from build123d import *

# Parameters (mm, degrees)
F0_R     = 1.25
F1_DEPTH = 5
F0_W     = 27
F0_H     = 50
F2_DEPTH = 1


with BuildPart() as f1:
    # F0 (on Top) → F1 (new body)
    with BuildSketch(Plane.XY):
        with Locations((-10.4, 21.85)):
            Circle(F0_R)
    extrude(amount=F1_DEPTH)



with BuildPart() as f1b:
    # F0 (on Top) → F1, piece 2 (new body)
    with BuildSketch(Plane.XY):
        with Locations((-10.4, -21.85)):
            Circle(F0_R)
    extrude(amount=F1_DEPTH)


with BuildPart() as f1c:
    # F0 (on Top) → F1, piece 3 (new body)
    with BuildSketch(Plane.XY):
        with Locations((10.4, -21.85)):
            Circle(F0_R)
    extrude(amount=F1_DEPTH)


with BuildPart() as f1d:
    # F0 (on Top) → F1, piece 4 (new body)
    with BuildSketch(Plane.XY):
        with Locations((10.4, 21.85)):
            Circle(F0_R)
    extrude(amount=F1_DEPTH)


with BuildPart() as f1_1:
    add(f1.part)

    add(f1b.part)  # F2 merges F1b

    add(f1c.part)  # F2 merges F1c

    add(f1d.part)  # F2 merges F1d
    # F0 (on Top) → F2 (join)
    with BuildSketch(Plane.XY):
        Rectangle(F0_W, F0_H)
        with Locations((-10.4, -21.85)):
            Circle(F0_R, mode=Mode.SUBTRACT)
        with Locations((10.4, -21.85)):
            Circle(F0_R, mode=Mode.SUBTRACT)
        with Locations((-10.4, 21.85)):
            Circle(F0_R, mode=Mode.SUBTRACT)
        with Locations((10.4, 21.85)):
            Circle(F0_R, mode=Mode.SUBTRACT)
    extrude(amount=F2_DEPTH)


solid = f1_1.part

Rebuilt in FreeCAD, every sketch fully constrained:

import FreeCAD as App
import Part
import Sketcher

V = App.Vector

doc = App.newDocument("Part")
body = doc.addObject("PartDesign::Body", "Body")

sketch1 = doc.addObject("Sketcher::SketchObject", "Sketch")
body.addObject(sketch1)
sketch1.AttachmentSupport = (doc.XY_Plane, [""])
sketch1.MapMode = "FlatFace"
sketch1.addGeometry(Part.Circle(V(-10.4, 21.85, 0), V(0, 0, 1), 1.25), False)
sketch1.addConstraint(Sketcher.Constraint("Diameter", 0, 2.5))
sketch1.addConstraint(Sketcher.Constraint("DistanceX", 0, 3, -1, 1, 10.4))
sketch1.addConstraint(Sketcher.Constraint("DistanceY", -1, 1, 0, 3, 21.85))
pad1 = doc.addObject("PartDesign::Pad", "Pad")
body.addObject(pad1)
pad1.Profile = sketch1
pad1.Length = 5
body2 = doc.addObject("PartDesign::Body", "Body001")

sketch2 = doc.addObject("Sketcher::SketchObject", "Sketch001")
body2.addObject(sketch2)
sketch2.AttachmentSupport = (doc.getObject("XY_Plane001"), [""])
sketch2.MapMode = "FlatFace"
sketch2.addGeometry(Part.Circle(V(-10.4, -21.85, 0), V(0, 0, 1), 1.25), False)
sketch2.addConstraint(Sketcher.Constraint("Diameter", 0, 2.5))
sketch2.addConstraint(Sketcher.Constraint("DistanceX", 0, 3, -1, 1, 10.4))
sketch2.addConstraint(Sketcher.Constraint("DistanceY", 0, 3, -1, 1, 21.85))
pad2 = doc.addObject("PartDesign::Pad", "Pad001")
body2.addObject(pad2)
pad2.Profile = sketch2
pad2.Length = 5
body3 = doc.addObject("PartDesign::Body", "Body002")

sketch3 = doc.addObject("Sketcher::SketchObject", "Sketch002")
body3.addObject(sketch3)
sketch3.AttachmentSupport = (doc.getObject("XY_Plane002"), [""])
sketch3.MapMode = "FlatFace"
sketch3.addGeometry(Part.Circle(V(10.4, -21.85, 0), V(0, 0, 1), 1.25), False)
sketch3.addConstraint(Sketcher.Constraint("Diameter", 0, 2.5))
sketch3.addConstraint(Sketcher.Constraint("DistanceX", -1, 1, 0, 3, 10.4))
sketch3.addConstraint(Sketcher.Constraint("DistanceY", 0, 3, -1, 1, 21.85))
pad3 = doc.addObject("PartDesign::Pad", "Pad002")
body3.addObject(pad3)
pad3.Profile = sketch3
pad3.Length = 5
body4 = doc.addObject("PartDesign::Body", "Body003")

sketch4 = doc.addObject("Sketcher::SketchObject", "Sketch003")
body4.addObject(sketch4)
sketch4.AttachmentSupport = (doc.getObject("XY_Plane003"), [""])
sketch4.MapMode = "FlatFace"
sketch4.addGeometry(Part.Circle(V(10.4, 21.85, 0), V(0, 0, 1), 1.25), False)
sketch4.addConstraint(Sketcher.Constraint("Diameter", 0, 2.5))
sketch4.addConstraint(Sketcher.Constraint("DistanceX", -1, 1, 0, 3, 10.4))
sketch4.addConstraint(Sketcher.Constraint("DistanceY", -1, 1, 0, 3, 21.85))
pad4 = doc.addObject("PartDesign::Pad", "Pad003")
body4.addObject(pad4)
pad4.Profile = sketch4
pad4.Length = 5
body.AllowCompound = True
doc.recompute()

boolean = doc.addObject("PartDesign::Boolean", "Boolean")
body.addObject(boolean)
boolean.Type = "Fuse"
boolean.addObjects([body2])
doc.recompute()

boolean2 = doc.addObject("PartDesign::Boolean", "Boolean001")
body.addObject(boolean2)
boolean2.Type = "Fuse"
boolean2.addObjects([body3])
doc.recompute()

boolean3 = doc.addObject("PartDesign::Boolean", "Boolean002")
body.addObject(boolean3)
boolean3.Type = "Fuse"
boolean3.addObjects([body4])

sketch5 = doc.addObject("Sketcher::SketchObject", "Sketch004")
body.addObject(sketch5)
sketch5.AttachmentSupport = (doc.XY_Plane, [""])
sketch5.MapMode = "FlatFace"
sketch5.addGeometry(Part.LineSegment(V(-13.5, 25, 0), V(-13.5, -25, 0)), False)
sketch5.addGeometry(Part.LineSegment(V(-13.5, -25, 0), V(13.5, -25, 0)), False)
sketch5.addGeometry(Part.LineSegment(V(13.5, -25, 0), V(13.5, 25, 0)), False)
sketch5.addGeometry(Part.LineSegment(V(13.5, 25, 0), V(-13.5, 25, 0)), False)
sketch5.addGeometry(Part.Circle(V(-10.4, -21.85, 0), V(0, 0, 1), 1.25), False)
sketch5.addGeometry(Part.Circle(V(10.4, -21.85, 0), V(0, 0, 1), 1.25), False)
sketch5.addGeometry(Part.Circle(V(-10.4, 21.85, 0), V(0, 0, 1), 1.25), False)
sketch5.addGeometry(Part.Circle(V(10.4, 21.85, 0), V(0, 0, 1), 1.25), False)
sketch5.addConstraint(Sketcher.Constraint("Coincident", 0, 2, 1, 1))
sketch5.addConstraint(Sketcher.Constraint("Coincident", 1, 2, 2, 1))
sketch5.addConstraint(Sketcher.Constraint("Coincident", 2, 2, 3, 1))
sketch5.addConstraint(Sketcher.Constraint("Coincident", 3, 2, 0, 1))
sketch5.addConstraint(Sketcher.Constraint("Vertical", 0))
sketch5.addConstraint(Sketcher.Constraint("Horizontal", 1))
sketch5.addConstraint(Sketcher.Constraint("Vertical", 2))
sketch5.addConstraint(Sketcher.Constraint("Horizontal", 3))
sketch5.addConstraint(Sketcher.Constraint("Equal", 4, 5))
sketch5.addConstraint(Sketcher.Constraint("Equal", 5, 6))
sketch5.addConstraint(Sketcher.Constraint("Equal", 6, 7))
sketch5.addConstraint(Sketcher.Constraint("Symmetric", 5, 3, 6, 3, -1, 1))
sketch5.addConstraint(Sketcher.Constraint("Symmetric", 4, 3, 7, 3, -1, 1))
sketch5.addConstraint(Sketcher.Constraint("Symmetric", 0, 2, 2, 2, -1, 1))
sketch5.addConstraint(Sketcher.Constraint("Symmetric", 4, 3, 5, 3, -2))
sketch5.addConstraint(Sketcher.Constraint("Diameter", 4, 2.5))
sketch5.addConstraint(Sketcher.Constraint("DistanceX", 1, 1, 1, 2, 27.0))
sketch5.addConstraint(Sketcher.Constraint("DistanceY", 0, 2, 0, 1, 50.0))
sketch5.addConstraint(Sketcher.Constraint("DistanceX", 4, 3, -1, 1, 10.4))
sketch5.addConstraint(Sketcher.Constraint("DistanceY", 4, 3, 6, 3, 43.7))
pad5 = doc.addObject("PartDesign::Pad", "Pad004")
body.addObject(pad5)
pad5.Profile = sketch5
pad5.Length = 1

doc.recompute()
